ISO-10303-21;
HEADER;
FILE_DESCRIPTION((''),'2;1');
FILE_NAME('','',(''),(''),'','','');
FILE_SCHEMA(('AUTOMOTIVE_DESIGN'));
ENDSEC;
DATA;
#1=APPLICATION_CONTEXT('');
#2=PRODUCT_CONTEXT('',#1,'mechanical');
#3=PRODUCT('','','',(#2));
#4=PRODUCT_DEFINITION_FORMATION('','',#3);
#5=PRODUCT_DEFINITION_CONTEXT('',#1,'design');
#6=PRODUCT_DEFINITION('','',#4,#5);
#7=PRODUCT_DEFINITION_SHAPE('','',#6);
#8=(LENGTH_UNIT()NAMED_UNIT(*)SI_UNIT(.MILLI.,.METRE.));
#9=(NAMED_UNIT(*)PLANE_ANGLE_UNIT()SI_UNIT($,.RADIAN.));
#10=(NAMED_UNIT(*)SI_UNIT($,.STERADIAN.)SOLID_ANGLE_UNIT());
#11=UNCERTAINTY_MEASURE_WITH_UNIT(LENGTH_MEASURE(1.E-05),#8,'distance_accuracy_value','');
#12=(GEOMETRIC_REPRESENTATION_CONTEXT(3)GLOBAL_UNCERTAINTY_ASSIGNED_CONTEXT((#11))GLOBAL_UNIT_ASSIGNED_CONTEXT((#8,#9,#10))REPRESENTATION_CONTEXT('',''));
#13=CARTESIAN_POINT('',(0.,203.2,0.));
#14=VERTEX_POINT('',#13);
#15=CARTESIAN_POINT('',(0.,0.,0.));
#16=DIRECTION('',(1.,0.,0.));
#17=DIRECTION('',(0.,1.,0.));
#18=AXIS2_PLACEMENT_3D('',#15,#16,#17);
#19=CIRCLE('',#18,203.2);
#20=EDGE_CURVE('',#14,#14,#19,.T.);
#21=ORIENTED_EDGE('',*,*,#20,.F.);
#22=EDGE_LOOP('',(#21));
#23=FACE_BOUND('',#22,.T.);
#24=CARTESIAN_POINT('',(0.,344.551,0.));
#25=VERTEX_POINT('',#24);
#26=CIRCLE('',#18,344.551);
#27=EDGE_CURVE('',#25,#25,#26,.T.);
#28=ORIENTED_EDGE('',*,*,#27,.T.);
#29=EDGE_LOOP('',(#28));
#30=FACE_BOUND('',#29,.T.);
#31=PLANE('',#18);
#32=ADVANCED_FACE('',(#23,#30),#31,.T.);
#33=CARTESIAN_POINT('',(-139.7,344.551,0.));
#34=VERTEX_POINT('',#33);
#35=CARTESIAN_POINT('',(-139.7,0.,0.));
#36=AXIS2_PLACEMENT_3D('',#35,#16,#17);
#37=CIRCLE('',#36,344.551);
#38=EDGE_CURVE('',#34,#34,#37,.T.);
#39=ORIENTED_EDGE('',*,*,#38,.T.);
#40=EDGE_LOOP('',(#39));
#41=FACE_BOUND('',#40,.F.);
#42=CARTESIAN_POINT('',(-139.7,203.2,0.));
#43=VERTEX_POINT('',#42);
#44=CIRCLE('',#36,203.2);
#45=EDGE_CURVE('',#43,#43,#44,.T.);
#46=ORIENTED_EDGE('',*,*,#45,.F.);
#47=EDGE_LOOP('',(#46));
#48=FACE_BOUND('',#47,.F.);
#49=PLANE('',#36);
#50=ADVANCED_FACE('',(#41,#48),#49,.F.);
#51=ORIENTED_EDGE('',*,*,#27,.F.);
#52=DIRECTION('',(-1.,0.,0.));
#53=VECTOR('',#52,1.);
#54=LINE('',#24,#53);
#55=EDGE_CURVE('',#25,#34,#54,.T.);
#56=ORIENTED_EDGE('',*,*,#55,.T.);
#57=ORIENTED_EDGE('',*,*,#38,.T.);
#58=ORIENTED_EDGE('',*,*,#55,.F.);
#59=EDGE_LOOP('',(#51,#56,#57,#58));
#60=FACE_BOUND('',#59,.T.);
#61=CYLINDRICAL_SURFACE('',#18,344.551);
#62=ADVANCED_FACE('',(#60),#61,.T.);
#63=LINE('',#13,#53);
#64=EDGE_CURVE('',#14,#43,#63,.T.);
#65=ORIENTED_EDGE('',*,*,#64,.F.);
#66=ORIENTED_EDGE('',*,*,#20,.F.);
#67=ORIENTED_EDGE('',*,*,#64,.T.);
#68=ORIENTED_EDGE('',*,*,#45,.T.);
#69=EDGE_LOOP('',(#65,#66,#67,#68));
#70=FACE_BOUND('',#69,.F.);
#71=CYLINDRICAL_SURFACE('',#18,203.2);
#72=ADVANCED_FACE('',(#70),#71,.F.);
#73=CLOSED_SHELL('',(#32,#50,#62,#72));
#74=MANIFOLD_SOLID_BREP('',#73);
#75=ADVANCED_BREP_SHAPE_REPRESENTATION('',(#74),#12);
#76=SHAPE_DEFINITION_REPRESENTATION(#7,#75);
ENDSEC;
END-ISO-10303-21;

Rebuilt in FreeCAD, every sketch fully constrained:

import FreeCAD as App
import Part
import Sketcher

V = App.Vector
Q = App.Units.Quantity

doc = App.newDocument("Part")
params = doc.addObject("Spreadsheet::Sheet", "Params")
for row, (alias, value) in enumerate([
    ("sketch1_diameter", "16 in"),
    ("sketch1_diameter2", "27.13 in"),
    ("pad1_length", "5.5 in"),
], start=1):
    params.set(f"A{row}", alias)
    params.set(f"B{row}", "=" + value)
    params.setAlias(f"B{row}", alias)

body = doc.addObject("PartDesign::Body", "Body")

# Sketch on YZ plane
sketch1 = body.newObject("Sketcher::SketchObject", "Sketch")
sketch1.AttachmentSupport = (doc.getObject("YZ_Plane"), [""])
sketch1.MapMode = "FlatFace"
sketch1.addGeometry([
    Part.Circle(V(0, 0, 0), V(0, 0, 1), 345),
    Part.Circle(V(0, 0, 0), V(0, 0, 1), 203),
], False)
sketch1.addConstraint([
    Sketcher.Constraint("Coincident", 0, 3, -1, 1),
    Sketcher.Constraint("Coincident", 1, 3, -1, 1),
    Sketcher.Constraint("Diameter", 1, Q("16 in")),
    Sketcher.Constraint("Diameter", 0, Q("27.13 in")),
])
sketch1.setExpression("Constraints[2]", "Params.sketch1_diameter")
sketch1.setExpression("Constraints[3]", "Params.sketch1_diameter2")
pad1 = body.newObject("PartDesign::Pad", "Pad")
pad1.Profile = sketch1
pad1.setExpression("Length", "Params.pad1_length")
pad1.Reversed = True

doc.recompute()
